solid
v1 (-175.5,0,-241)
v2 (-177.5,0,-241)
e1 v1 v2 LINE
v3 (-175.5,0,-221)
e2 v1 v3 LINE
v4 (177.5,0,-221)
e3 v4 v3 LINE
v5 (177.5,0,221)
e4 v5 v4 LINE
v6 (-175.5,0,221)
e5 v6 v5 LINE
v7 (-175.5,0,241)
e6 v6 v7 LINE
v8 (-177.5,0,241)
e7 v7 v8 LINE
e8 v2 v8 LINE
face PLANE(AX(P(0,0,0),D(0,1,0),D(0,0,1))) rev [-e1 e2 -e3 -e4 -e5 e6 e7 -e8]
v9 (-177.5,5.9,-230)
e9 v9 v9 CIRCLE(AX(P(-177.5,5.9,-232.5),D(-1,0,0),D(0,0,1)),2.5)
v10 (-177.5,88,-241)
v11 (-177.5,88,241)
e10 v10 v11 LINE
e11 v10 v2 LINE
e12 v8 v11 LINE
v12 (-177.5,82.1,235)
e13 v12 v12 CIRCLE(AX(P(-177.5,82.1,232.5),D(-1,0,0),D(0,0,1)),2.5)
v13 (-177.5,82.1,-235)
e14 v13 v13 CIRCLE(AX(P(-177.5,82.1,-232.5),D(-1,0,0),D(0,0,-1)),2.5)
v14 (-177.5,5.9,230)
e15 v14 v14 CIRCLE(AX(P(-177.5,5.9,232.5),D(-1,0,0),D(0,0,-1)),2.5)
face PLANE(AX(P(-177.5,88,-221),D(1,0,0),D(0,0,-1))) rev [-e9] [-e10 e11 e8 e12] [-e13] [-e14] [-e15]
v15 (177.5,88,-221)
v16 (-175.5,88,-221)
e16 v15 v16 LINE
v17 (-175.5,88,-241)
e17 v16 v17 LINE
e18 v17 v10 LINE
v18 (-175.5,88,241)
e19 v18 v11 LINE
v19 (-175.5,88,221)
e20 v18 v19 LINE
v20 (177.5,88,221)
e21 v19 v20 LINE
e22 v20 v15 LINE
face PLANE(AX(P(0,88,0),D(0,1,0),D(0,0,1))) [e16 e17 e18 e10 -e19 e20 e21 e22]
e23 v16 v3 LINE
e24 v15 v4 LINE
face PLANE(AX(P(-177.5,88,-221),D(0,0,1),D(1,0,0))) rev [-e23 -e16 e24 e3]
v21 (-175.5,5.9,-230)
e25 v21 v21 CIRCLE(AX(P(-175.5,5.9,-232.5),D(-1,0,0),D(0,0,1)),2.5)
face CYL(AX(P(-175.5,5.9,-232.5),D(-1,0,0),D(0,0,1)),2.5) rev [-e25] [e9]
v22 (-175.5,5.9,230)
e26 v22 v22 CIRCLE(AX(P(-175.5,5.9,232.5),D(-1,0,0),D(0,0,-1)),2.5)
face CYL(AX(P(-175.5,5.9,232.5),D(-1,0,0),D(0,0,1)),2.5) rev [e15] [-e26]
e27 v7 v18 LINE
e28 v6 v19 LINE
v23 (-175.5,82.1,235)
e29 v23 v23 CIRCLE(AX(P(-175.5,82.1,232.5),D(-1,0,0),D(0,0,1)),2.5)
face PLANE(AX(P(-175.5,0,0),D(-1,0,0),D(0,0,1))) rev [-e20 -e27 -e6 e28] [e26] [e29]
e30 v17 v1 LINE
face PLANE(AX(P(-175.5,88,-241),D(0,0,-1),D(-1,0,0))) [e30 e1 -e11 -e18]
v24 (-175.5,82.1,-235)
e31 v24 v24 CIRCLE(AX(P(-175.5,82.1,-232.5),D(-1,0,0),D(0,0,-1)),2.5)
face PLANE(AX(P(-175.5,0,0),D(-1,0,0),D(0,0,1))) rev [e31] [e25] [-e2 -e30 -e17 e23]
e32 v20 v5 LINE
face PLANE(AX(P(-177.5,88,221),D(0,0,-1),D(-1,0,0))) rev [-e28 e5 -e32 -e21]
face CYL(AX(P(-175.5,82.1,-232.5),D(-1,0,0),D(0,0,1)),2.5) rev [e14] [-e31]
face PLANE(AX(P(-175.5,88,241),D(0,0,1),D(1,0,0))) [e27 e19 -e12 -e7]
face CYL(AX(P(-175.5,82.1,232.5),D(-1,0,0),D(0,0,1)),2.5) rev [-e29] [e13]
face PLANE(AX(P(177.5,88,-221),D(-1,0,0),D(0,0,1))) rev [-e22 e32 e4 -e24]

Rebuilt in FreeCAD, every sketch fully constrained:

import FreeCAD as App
import Part
import Sketcher
Q = App.Units.Quantity

doc = App.newDocument("Part")
body = doc.addObject("PartDesign::Body", "Body")

# Sketch on XZ plane
sketch1 = body.newObject("Sketcher::SketchObject", "Sketch")
sketch1.AttachmentSupport = (doc.getObject("XZ_Plane"), [""])
sketch1.MapMode = "FlatFace"
sketch1.addGeometry([
    Part.LineSegment(App.Vector(-178, -221, 0), App.Vector(-178, 221, 0)),
    Part.LineSegment(App.Vector(-178, 221, 0), App.Vector(178, 221, 0)),
    Part.LineSegment(App.Vector(178, 221, 0), App.Vector(178, -221, 0)),
    Part.LineSegment(App.Vector(178, -221, 0), App.Vector(-178, -221, 0)),
], False)
sketch1.addConstraint([
    Sketcher.Constraint("Coincident", 0, 2, 1, 1),
    Sketcher.Constraint("Coincident", 1, 2, 2, 1),
    Sketcher.Constraint("Coincident", 2, 2, 3, 1),
    Sketcher.Constraint("Coincident", 3, 2, 0, 1),
    Sketcher.Constraint("Vertical", 0),
    Sketcher.Constraint("Horizontal", 1),
    Sketcher.Constraint("Vertical", 2),
    Sketcher.Constraint("Horizontal", 3),
    Sketcher.Constraint("Symmetric", 0, 2, 2, 2, -1, 1),
    Sketcher.Constraint("DistanceX", 1, 1, 1, 2, Q("355 mm")),
    Sketcher.Constraint("DistanceY", 0, 1, 0, 2, Q("442 mm")),
])
pad1 = body.newObject("PartDesign::Pad", "Pad")
pad1.Profile = sketch1
pad1.Length = 88
pad1.Reversed = True

# Sketch on YZ plane
sketch2 = body.newObject("Sketcher::SketchObject", "Sketch001")
sketch2.AttachmentSupport = (doc.getObject("YZ_Plane"), [""])
sketch2.MapMode = "FlatFace"
sketch2.AttachmentOffset = App.Placement(App.Vector(0, 0, -177.5), App.Rotation())
sketch2.addGeometry([
    Part.LineSegment(App.Vector(88, -241, 0), App.Vector(0, -241, 0)),  # 0
    Part.LineSegment(App.Vector(0, -241, 0), App.Vector(0, 241, 0)),  # 1
    Part.LineSegment(App.Vector(0, 241, 0), App.Vector(88, 241, 0)),  # 2
    Part.LineSegment(App.Vector(88, 241, 0), App.Vector(88, -241, 0)),  # 3
    Part.Circle(App.Vector(5.9, -232.5, 0), App.Vector(0, 0, 1), 2.5),  # 4
    Part.Circle(App.Vector(5.9, 232.5, 0), App.Vector(0, 0, 1), 2.5),  # 5
    Part.Circle(App.Vector(82.1, -232.5, 0), App.Vector(0, 0, 1), 2.5),  # 6
    Part.Circle(App.Vector(82.1, 232.5, 0), App.Vector(0, 0, 1), 2.5),  # 7
], False)
sketch2.addConstraint([
    Sketcher.Constraint("Coincident", 0, 2, 1, 1),
    Sketcher.Constraint("Coincident", 1, 2, 2, 1),
    Sketcher.Constraint("Coincident", 2, 2, 3, 1),
    Sketcher.Constraint("Coincident", 3, 2, 0, 1),
    Sketcher.Constraint("Horizontal", 0),
    Sketcher.Constraint("Vertical", 1),
    Sketcher.Constraint("Horizontal", 2),
    Sketcher.Constraint("Vertical", 3),
    Sketcher.Constraint("Equal", 4, 5),
    Sketcher.Constraint("Equal", 5, 6),
    Sketcher.Constraint("Equal", 6, 7),
    Sketcher.Constraint("Symmetric", 0, 2, 1, 2, -1, 1),
    Sketcher.Constraint("Symmetric", 4, 3, 5, 3, -1),
    Sketcher.Constraint("Symmetric", 6, 3, 7, 3, -1),
    Sketcher.Constraint("Horizontal", 4, 3, 6, 3),
    Sketcher.Constraint("Diameter", 4, Q("5 mm")),
    Sketcher.Constraint("DistanceX", 0, 2, 0, 1, Q("88 mm")),
    Sketcher.Constraint("DistanceY", 1, 1, 1, 2, Q("482 mm")),
    Sketcher.Constraint("DistanceY", 4, 3, 5, 3, Q("465 mm")),
    Sketcher.Constraint("DistanceX", -1, 1, 4, 3, Q("5.9 mm")),
    Sketcher.Constraint("DistanceX", -1, 1, 6, 3, Q("82.1 mm")),
])
pad2 = body.newObject("PartDesign::Pad", "Pad001")
pad2.Profile = sketch2
pad2.Length = 2

doc.recompute()
